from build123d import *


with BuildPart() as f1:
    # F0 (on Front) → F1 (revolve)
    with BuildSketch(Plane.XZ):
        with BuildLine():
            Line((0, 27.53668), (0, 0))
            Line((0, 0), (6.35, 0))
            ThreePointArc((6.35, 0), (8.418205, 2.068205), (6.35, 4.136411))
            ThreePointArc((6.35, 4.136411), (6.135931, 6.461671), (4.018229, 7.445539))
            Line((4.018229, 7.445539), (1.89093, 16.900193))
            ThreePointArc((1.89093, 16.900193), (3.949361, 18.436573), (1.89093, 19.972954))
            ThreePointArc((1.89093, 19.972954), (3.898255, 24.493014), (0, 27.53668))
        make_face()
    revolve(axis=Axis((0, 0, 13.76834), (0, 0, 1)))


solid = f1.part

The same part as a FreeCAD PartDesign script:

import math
import FreeCAD as App
import Part
import Sketcher

V = App.Vector
Q = App.Units.Quantity

doc = App.newDocument("Part")
params = doc.addObject("Spreadsheet::Sheet", "Params")
for row, (alias, value) in enumerate([
    ("sketch1_width", "0.25 in"),
    ("revolution_angle", "360 deg"),
], start=1):
    params.set(f"A{row}", alias)
    params.set(f"B{row}", "=" + value)
    params.setAlias(f"B{row}", alias)

body = doc.addObject("PartDesign::Body", "Body")

sketch1 = doc.addObject("Sketcher::SketchObject", "Sketch")
body.addObject(sketch1)
sketch1.AttachmentSupport = (doc.XZ_Plane, [""])
sketch1.MapMode = "FlatFace"
sketch1.addGeometry([
    Part.LineSegment(V(0, 27.53668, 0), V(0, 0, 0)),
    Part.LineSegment(V(0, 0, 0), V(6.35, 0, 0)),
    Part.ArcOfCircle(Part.Circle(V(6.35, 2.068205, 0), V(0, 0, 1), 2.068205), math.radians(-89.999986), math.radians(89.999986)),
    Part.ArcOfCircle(Part.Circle(V(4.22194, 5.112981, 0), V(0, 0, 1), 2.341437), math.radians(-24.650454), math.radians(94.991192)),
    Part.LineSegment(V(4.018229, 7.445539, 0), V(1.89093, 16.900193, 0)),
    Part.ArcOfCircle(Part.Circle(V(2.34678, 18.436574, 0), V(0, 0, 1), 1.602581), math.radians(-106.525839), math.radians(106.525839)),
    Part.ArcOfCircle(Part.Circle(V(0, 23.518451, 0), V(0, 0, 1), 4.018229), math.radians(-61.927535), math.radians(90.000001)),
], False)
sketch1.addConstraint([
    Sketcher.Constraint("Coincident", 0, 2, 1, 1),
    Sketcher.Constraint("Tangent", 1, 2, 2, 1),
    Sketcher.Constraint("Coincident", 2, 2, 3, 1),
    Sketcher.Constraint("Coincident", 3, 2, 4, 1),
    Sketcher.Constraint("Coincident", 4, 2, 5, 1),
    Sketcher.Constraint("Coincident", 5, 2, 6, 1),
    Sketcher.Constraint("Coincident", 6, 2, 0, 1),
    Sketcher.Constraint("Vertical", 0),
    Sketcher.Constraint("Horizontal", 1),
    Sketcher.Constraint("Coincident", 0, 2, -1, 1),
    Sketcher.Constraint("PointOnObject", 6, 3, -2),
    Sketcher.Constraint("Vertical", 1, 2, 2, 2),
    Sketcher.Constraint("Vertical", 4, 2, 5, 2),
    Sketcher.Constraint("DistanceX", 1, 1, 1, 2, Q("0.25 in")),
    Sketcher.Constraint("Radius", 5, 1.602581),
    Sketcher.Constraint("Radius", 6, 4.018229),
    Sketcher.Constraint("Radius", 2, 2.068205),
    Sketcher.Constraint("Radius", 3, 2.341437),
    Sketcher.Constraint("DistanceY", 0, 2, 0, 1, 27.53668),
    Sketcher.Constraint("DistanceX", 4, 2, 3, 2, 2.127299),
    Sketcher.Constraint("Distance", 4, 9.691021),
    Sketcher.Constraint("DistanceX", -1, 1, 3, 3, 4.22194),
    Sketcher.Constraint("DistanceX", -1, 1, 5, 3, 2.34678),
])
sketch1.setExpression("Constraints[13]", "Params.sketch1_width")
revolution = doc.addObject("PartDesign::Revolution", "Revolution")
body.addObject(revolution)
revolution.Profile = sketch1
revolution.ReferenceAxis = (sketch1, ["V_Axis"])
revolution.setExpression("Angle", "Params.revolution_angle")

doc.recompute()
